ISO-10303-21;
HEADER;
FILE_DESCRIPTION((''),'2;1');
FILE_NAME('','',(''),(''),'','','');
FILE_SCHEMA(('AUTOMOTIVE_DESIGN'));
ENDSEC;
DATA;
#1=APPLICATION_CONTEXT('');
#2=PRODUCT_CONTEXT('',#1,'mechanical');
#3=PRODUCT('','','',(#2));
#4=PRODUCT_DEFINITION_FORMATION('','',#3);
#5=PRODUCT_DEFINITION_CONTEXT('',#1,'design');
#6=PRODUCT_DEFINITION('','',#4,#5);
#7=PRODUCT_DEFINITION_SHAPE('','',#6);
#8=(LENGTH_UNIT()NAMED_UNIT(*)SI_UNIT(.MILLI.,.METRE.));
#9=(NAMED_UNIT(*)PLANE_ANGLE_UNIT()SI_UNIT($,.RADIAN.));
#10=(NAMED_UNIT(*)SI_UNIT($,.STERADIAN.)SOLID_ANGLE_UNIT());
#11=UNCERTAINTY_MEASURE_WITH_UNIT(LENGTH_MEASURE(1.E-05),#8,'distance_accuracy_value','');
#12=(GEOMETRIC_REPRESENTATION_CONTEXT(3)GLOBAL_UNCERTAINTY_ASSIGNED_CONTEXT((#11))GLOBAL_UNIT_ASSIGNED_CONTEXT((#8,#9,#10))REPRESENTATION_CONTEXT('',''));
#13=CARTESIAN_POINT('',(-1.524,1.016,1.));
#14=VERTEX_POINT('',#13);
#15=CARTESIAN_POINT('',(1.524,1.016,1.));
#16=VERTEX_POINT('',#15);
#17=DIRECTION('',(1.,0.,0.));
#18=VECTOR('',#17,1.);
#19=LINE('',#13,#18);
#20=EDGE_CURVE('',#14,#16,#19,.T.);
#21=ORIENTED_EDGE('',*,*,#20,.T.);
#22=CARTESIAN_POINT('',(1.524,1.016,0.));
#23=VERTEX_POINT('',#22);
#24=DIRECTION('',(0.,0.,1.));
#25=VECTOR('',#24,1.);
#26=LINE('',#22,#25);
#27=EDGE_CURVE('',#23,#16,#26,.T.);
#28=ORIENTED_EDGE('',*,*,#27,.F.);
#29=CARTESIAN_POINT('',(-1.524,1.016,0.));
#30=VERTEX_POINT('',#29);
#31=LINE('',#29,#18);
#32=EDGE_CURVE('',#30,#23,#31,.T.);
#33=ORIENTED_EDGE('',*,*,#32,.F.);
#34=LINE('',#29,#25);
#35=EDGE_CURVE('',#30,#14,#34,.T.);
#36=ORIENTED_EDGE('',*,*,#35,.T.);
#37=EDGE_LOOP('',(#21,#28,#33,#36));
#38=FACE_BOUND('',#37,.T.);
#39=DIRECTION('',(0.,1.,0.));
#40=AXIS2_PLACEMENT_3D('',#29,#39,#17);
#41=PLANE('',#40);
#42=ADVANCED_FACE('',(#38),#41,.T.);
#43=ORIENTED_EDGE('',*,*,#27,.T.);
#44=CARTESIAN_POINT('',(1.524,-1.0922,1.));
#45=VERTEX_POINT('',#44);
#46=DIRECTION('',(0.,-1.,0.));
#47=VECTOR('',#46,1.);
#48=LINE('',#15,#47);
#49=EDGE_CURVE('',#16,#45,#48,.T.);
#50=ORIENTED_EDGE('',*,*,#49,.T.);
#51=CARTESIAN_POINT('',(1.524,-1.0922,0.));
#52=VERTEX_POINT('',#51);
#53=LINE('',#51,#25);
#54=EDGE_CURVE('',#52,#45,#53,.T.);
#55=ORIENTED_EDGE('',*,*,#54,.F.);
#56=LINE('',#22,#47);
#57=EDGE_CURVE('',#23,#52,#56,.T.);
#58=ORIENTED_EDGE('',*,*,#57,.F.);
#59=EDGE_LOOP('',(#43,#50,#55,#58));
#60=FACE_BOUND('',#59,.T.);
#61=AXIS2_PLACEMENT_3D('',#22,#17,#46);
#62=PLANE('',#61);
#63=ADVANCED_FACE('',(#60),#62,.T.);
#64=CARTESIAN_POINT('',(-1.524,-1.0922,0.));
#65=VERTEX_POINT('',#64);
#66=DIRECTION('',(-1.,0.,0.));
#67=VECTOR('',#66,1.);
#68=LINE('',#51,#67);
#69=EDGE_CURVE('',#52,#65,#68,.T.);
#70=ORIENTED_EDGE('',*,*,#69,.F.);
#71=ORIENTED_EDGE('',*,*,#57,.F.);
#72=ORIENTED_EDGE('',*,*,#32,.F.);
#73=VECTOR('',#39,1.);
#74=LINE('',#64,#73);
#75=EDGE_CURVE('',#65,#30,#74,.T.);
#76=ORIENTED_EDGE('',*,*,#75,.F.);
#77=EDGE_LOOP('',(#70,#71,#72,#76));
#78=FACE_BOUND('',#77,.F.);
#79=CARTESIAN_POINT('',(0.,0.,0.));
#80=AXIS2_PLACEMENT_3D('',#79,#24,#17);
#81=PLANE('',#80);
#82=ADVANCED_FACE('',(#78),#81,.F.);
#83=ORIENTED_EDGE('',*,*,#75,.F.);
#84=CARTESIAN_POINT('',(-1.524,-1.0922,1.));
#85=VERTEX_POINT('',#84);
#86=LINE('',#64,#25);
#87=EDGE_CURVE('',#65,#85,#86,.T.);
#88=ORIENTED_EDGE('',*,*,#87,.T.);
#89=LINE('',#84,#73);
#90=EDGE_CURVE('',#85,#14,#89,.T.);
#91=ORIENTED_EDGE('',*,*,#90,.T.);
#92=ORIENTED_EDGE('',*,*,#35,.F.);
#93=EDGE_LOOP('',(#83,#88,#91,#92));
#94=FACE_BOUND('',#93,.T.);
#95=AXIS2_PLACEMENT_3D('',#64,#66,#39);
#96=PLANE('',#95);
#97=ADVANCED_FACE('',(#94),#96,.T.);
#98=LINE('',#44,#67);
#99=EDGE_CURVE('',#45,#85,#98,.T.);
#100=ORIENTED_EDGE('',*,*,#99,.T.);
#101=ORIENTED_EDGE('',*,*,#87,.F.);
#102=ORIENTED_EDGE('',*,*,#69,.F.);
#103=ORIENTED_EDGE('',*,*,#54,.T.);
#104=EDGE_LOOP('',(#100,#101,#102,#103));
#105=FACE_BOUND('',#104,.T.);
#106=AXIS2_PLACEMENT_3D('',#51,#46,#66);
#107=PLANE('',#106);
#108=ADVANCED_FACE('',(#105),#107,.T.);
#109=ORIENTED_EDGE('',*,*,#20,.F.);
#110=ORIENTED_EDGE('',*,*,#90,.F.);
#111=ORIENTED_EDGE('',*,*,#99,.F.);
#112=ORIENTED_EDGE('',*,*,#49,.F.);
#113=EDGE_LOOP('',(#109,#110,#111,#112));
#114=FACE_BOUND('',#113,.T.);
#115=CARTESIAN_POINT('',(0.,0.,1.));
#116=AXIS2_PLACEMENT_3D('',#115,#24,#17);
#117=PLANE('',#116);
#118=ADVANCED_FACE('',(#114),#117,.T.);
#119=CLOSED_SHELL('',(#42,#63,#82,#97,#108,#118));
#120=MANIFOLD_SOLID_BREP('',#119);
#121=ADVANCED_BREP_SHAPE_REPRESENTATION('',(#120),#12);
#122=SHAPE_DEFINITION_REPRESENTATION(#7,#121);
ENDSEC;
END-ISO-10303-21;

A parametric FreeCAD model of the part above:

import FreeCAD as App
import Part
import Sketcher
from FreeCAD import Vector
Q = App.Units.Quantity


def add_polygon(sketch, points):
    """Adds a closed chain of lines whose ends are joined by coincident constraints."""
    first, n = sketch.GeometryCount, len(points)
    for a, b in zip(points, points[1:] + points[:1]):
        sketch.addGeometry(Part.LineSegment(App.Vector(*a, 0), App.Vector(*b, 0)), False)
    for i in range(n):
        sketch.addConstraint(Sketcher.Constraint("Coincident", first + i, 2, first + (i + 1) % n, 1))

doc = App.newDocument("Part")
body = doc.addObject("PartDesign::Body", "Body")

# Sketch on XY plane
sketch1 = body.newObject("Sketcher::SketchObject", "Sketch")
sketch1.AttachmentSupport = (doc.getObject("XY_Plane"), [""])
sketch1.MapMode = "FlatFace"
add_polygon(sketch1, [(1.5, 1), (-1.5, 1), (-1.5, -1.1), (1.5, -1.1)])  # lines 0-3
sketch1.addConstraint(Sketcher.Constraint("Horizontal", 0))
sketch1.addConstraint(Sketcher.Constraint("Vertical", 1))
sketch1.addConstraint(Sketcher.Constraint("Horizontal", 2))
sketch1.addConstraint(Sketcher.Constraint("Vertical", 3))
sketch1.addConstraint(Sketcher.Constraint("DistanceX", 0, 2, 0, 1, Q("0.12 in")))
sketch1.addConstraint(Sketcher.Constraint("DistanceY", 1, 2, 1, 1, Q("0.083 in")))
sketch1.addConstraint(Sketcher.Constraint("DistanceX", 0, 2, -1, 1, Q("0.06 in")))
sketch1.addConstraint(Sketcher.Constraint("DistanceY", -1, 1, 0, 2, Q("0.04 in")))
pad1 = body.newObject("PartDesign::Pad", "Pad")
pad1.Profile = sketch1
pad1.Length = 1

doc.recompute()
